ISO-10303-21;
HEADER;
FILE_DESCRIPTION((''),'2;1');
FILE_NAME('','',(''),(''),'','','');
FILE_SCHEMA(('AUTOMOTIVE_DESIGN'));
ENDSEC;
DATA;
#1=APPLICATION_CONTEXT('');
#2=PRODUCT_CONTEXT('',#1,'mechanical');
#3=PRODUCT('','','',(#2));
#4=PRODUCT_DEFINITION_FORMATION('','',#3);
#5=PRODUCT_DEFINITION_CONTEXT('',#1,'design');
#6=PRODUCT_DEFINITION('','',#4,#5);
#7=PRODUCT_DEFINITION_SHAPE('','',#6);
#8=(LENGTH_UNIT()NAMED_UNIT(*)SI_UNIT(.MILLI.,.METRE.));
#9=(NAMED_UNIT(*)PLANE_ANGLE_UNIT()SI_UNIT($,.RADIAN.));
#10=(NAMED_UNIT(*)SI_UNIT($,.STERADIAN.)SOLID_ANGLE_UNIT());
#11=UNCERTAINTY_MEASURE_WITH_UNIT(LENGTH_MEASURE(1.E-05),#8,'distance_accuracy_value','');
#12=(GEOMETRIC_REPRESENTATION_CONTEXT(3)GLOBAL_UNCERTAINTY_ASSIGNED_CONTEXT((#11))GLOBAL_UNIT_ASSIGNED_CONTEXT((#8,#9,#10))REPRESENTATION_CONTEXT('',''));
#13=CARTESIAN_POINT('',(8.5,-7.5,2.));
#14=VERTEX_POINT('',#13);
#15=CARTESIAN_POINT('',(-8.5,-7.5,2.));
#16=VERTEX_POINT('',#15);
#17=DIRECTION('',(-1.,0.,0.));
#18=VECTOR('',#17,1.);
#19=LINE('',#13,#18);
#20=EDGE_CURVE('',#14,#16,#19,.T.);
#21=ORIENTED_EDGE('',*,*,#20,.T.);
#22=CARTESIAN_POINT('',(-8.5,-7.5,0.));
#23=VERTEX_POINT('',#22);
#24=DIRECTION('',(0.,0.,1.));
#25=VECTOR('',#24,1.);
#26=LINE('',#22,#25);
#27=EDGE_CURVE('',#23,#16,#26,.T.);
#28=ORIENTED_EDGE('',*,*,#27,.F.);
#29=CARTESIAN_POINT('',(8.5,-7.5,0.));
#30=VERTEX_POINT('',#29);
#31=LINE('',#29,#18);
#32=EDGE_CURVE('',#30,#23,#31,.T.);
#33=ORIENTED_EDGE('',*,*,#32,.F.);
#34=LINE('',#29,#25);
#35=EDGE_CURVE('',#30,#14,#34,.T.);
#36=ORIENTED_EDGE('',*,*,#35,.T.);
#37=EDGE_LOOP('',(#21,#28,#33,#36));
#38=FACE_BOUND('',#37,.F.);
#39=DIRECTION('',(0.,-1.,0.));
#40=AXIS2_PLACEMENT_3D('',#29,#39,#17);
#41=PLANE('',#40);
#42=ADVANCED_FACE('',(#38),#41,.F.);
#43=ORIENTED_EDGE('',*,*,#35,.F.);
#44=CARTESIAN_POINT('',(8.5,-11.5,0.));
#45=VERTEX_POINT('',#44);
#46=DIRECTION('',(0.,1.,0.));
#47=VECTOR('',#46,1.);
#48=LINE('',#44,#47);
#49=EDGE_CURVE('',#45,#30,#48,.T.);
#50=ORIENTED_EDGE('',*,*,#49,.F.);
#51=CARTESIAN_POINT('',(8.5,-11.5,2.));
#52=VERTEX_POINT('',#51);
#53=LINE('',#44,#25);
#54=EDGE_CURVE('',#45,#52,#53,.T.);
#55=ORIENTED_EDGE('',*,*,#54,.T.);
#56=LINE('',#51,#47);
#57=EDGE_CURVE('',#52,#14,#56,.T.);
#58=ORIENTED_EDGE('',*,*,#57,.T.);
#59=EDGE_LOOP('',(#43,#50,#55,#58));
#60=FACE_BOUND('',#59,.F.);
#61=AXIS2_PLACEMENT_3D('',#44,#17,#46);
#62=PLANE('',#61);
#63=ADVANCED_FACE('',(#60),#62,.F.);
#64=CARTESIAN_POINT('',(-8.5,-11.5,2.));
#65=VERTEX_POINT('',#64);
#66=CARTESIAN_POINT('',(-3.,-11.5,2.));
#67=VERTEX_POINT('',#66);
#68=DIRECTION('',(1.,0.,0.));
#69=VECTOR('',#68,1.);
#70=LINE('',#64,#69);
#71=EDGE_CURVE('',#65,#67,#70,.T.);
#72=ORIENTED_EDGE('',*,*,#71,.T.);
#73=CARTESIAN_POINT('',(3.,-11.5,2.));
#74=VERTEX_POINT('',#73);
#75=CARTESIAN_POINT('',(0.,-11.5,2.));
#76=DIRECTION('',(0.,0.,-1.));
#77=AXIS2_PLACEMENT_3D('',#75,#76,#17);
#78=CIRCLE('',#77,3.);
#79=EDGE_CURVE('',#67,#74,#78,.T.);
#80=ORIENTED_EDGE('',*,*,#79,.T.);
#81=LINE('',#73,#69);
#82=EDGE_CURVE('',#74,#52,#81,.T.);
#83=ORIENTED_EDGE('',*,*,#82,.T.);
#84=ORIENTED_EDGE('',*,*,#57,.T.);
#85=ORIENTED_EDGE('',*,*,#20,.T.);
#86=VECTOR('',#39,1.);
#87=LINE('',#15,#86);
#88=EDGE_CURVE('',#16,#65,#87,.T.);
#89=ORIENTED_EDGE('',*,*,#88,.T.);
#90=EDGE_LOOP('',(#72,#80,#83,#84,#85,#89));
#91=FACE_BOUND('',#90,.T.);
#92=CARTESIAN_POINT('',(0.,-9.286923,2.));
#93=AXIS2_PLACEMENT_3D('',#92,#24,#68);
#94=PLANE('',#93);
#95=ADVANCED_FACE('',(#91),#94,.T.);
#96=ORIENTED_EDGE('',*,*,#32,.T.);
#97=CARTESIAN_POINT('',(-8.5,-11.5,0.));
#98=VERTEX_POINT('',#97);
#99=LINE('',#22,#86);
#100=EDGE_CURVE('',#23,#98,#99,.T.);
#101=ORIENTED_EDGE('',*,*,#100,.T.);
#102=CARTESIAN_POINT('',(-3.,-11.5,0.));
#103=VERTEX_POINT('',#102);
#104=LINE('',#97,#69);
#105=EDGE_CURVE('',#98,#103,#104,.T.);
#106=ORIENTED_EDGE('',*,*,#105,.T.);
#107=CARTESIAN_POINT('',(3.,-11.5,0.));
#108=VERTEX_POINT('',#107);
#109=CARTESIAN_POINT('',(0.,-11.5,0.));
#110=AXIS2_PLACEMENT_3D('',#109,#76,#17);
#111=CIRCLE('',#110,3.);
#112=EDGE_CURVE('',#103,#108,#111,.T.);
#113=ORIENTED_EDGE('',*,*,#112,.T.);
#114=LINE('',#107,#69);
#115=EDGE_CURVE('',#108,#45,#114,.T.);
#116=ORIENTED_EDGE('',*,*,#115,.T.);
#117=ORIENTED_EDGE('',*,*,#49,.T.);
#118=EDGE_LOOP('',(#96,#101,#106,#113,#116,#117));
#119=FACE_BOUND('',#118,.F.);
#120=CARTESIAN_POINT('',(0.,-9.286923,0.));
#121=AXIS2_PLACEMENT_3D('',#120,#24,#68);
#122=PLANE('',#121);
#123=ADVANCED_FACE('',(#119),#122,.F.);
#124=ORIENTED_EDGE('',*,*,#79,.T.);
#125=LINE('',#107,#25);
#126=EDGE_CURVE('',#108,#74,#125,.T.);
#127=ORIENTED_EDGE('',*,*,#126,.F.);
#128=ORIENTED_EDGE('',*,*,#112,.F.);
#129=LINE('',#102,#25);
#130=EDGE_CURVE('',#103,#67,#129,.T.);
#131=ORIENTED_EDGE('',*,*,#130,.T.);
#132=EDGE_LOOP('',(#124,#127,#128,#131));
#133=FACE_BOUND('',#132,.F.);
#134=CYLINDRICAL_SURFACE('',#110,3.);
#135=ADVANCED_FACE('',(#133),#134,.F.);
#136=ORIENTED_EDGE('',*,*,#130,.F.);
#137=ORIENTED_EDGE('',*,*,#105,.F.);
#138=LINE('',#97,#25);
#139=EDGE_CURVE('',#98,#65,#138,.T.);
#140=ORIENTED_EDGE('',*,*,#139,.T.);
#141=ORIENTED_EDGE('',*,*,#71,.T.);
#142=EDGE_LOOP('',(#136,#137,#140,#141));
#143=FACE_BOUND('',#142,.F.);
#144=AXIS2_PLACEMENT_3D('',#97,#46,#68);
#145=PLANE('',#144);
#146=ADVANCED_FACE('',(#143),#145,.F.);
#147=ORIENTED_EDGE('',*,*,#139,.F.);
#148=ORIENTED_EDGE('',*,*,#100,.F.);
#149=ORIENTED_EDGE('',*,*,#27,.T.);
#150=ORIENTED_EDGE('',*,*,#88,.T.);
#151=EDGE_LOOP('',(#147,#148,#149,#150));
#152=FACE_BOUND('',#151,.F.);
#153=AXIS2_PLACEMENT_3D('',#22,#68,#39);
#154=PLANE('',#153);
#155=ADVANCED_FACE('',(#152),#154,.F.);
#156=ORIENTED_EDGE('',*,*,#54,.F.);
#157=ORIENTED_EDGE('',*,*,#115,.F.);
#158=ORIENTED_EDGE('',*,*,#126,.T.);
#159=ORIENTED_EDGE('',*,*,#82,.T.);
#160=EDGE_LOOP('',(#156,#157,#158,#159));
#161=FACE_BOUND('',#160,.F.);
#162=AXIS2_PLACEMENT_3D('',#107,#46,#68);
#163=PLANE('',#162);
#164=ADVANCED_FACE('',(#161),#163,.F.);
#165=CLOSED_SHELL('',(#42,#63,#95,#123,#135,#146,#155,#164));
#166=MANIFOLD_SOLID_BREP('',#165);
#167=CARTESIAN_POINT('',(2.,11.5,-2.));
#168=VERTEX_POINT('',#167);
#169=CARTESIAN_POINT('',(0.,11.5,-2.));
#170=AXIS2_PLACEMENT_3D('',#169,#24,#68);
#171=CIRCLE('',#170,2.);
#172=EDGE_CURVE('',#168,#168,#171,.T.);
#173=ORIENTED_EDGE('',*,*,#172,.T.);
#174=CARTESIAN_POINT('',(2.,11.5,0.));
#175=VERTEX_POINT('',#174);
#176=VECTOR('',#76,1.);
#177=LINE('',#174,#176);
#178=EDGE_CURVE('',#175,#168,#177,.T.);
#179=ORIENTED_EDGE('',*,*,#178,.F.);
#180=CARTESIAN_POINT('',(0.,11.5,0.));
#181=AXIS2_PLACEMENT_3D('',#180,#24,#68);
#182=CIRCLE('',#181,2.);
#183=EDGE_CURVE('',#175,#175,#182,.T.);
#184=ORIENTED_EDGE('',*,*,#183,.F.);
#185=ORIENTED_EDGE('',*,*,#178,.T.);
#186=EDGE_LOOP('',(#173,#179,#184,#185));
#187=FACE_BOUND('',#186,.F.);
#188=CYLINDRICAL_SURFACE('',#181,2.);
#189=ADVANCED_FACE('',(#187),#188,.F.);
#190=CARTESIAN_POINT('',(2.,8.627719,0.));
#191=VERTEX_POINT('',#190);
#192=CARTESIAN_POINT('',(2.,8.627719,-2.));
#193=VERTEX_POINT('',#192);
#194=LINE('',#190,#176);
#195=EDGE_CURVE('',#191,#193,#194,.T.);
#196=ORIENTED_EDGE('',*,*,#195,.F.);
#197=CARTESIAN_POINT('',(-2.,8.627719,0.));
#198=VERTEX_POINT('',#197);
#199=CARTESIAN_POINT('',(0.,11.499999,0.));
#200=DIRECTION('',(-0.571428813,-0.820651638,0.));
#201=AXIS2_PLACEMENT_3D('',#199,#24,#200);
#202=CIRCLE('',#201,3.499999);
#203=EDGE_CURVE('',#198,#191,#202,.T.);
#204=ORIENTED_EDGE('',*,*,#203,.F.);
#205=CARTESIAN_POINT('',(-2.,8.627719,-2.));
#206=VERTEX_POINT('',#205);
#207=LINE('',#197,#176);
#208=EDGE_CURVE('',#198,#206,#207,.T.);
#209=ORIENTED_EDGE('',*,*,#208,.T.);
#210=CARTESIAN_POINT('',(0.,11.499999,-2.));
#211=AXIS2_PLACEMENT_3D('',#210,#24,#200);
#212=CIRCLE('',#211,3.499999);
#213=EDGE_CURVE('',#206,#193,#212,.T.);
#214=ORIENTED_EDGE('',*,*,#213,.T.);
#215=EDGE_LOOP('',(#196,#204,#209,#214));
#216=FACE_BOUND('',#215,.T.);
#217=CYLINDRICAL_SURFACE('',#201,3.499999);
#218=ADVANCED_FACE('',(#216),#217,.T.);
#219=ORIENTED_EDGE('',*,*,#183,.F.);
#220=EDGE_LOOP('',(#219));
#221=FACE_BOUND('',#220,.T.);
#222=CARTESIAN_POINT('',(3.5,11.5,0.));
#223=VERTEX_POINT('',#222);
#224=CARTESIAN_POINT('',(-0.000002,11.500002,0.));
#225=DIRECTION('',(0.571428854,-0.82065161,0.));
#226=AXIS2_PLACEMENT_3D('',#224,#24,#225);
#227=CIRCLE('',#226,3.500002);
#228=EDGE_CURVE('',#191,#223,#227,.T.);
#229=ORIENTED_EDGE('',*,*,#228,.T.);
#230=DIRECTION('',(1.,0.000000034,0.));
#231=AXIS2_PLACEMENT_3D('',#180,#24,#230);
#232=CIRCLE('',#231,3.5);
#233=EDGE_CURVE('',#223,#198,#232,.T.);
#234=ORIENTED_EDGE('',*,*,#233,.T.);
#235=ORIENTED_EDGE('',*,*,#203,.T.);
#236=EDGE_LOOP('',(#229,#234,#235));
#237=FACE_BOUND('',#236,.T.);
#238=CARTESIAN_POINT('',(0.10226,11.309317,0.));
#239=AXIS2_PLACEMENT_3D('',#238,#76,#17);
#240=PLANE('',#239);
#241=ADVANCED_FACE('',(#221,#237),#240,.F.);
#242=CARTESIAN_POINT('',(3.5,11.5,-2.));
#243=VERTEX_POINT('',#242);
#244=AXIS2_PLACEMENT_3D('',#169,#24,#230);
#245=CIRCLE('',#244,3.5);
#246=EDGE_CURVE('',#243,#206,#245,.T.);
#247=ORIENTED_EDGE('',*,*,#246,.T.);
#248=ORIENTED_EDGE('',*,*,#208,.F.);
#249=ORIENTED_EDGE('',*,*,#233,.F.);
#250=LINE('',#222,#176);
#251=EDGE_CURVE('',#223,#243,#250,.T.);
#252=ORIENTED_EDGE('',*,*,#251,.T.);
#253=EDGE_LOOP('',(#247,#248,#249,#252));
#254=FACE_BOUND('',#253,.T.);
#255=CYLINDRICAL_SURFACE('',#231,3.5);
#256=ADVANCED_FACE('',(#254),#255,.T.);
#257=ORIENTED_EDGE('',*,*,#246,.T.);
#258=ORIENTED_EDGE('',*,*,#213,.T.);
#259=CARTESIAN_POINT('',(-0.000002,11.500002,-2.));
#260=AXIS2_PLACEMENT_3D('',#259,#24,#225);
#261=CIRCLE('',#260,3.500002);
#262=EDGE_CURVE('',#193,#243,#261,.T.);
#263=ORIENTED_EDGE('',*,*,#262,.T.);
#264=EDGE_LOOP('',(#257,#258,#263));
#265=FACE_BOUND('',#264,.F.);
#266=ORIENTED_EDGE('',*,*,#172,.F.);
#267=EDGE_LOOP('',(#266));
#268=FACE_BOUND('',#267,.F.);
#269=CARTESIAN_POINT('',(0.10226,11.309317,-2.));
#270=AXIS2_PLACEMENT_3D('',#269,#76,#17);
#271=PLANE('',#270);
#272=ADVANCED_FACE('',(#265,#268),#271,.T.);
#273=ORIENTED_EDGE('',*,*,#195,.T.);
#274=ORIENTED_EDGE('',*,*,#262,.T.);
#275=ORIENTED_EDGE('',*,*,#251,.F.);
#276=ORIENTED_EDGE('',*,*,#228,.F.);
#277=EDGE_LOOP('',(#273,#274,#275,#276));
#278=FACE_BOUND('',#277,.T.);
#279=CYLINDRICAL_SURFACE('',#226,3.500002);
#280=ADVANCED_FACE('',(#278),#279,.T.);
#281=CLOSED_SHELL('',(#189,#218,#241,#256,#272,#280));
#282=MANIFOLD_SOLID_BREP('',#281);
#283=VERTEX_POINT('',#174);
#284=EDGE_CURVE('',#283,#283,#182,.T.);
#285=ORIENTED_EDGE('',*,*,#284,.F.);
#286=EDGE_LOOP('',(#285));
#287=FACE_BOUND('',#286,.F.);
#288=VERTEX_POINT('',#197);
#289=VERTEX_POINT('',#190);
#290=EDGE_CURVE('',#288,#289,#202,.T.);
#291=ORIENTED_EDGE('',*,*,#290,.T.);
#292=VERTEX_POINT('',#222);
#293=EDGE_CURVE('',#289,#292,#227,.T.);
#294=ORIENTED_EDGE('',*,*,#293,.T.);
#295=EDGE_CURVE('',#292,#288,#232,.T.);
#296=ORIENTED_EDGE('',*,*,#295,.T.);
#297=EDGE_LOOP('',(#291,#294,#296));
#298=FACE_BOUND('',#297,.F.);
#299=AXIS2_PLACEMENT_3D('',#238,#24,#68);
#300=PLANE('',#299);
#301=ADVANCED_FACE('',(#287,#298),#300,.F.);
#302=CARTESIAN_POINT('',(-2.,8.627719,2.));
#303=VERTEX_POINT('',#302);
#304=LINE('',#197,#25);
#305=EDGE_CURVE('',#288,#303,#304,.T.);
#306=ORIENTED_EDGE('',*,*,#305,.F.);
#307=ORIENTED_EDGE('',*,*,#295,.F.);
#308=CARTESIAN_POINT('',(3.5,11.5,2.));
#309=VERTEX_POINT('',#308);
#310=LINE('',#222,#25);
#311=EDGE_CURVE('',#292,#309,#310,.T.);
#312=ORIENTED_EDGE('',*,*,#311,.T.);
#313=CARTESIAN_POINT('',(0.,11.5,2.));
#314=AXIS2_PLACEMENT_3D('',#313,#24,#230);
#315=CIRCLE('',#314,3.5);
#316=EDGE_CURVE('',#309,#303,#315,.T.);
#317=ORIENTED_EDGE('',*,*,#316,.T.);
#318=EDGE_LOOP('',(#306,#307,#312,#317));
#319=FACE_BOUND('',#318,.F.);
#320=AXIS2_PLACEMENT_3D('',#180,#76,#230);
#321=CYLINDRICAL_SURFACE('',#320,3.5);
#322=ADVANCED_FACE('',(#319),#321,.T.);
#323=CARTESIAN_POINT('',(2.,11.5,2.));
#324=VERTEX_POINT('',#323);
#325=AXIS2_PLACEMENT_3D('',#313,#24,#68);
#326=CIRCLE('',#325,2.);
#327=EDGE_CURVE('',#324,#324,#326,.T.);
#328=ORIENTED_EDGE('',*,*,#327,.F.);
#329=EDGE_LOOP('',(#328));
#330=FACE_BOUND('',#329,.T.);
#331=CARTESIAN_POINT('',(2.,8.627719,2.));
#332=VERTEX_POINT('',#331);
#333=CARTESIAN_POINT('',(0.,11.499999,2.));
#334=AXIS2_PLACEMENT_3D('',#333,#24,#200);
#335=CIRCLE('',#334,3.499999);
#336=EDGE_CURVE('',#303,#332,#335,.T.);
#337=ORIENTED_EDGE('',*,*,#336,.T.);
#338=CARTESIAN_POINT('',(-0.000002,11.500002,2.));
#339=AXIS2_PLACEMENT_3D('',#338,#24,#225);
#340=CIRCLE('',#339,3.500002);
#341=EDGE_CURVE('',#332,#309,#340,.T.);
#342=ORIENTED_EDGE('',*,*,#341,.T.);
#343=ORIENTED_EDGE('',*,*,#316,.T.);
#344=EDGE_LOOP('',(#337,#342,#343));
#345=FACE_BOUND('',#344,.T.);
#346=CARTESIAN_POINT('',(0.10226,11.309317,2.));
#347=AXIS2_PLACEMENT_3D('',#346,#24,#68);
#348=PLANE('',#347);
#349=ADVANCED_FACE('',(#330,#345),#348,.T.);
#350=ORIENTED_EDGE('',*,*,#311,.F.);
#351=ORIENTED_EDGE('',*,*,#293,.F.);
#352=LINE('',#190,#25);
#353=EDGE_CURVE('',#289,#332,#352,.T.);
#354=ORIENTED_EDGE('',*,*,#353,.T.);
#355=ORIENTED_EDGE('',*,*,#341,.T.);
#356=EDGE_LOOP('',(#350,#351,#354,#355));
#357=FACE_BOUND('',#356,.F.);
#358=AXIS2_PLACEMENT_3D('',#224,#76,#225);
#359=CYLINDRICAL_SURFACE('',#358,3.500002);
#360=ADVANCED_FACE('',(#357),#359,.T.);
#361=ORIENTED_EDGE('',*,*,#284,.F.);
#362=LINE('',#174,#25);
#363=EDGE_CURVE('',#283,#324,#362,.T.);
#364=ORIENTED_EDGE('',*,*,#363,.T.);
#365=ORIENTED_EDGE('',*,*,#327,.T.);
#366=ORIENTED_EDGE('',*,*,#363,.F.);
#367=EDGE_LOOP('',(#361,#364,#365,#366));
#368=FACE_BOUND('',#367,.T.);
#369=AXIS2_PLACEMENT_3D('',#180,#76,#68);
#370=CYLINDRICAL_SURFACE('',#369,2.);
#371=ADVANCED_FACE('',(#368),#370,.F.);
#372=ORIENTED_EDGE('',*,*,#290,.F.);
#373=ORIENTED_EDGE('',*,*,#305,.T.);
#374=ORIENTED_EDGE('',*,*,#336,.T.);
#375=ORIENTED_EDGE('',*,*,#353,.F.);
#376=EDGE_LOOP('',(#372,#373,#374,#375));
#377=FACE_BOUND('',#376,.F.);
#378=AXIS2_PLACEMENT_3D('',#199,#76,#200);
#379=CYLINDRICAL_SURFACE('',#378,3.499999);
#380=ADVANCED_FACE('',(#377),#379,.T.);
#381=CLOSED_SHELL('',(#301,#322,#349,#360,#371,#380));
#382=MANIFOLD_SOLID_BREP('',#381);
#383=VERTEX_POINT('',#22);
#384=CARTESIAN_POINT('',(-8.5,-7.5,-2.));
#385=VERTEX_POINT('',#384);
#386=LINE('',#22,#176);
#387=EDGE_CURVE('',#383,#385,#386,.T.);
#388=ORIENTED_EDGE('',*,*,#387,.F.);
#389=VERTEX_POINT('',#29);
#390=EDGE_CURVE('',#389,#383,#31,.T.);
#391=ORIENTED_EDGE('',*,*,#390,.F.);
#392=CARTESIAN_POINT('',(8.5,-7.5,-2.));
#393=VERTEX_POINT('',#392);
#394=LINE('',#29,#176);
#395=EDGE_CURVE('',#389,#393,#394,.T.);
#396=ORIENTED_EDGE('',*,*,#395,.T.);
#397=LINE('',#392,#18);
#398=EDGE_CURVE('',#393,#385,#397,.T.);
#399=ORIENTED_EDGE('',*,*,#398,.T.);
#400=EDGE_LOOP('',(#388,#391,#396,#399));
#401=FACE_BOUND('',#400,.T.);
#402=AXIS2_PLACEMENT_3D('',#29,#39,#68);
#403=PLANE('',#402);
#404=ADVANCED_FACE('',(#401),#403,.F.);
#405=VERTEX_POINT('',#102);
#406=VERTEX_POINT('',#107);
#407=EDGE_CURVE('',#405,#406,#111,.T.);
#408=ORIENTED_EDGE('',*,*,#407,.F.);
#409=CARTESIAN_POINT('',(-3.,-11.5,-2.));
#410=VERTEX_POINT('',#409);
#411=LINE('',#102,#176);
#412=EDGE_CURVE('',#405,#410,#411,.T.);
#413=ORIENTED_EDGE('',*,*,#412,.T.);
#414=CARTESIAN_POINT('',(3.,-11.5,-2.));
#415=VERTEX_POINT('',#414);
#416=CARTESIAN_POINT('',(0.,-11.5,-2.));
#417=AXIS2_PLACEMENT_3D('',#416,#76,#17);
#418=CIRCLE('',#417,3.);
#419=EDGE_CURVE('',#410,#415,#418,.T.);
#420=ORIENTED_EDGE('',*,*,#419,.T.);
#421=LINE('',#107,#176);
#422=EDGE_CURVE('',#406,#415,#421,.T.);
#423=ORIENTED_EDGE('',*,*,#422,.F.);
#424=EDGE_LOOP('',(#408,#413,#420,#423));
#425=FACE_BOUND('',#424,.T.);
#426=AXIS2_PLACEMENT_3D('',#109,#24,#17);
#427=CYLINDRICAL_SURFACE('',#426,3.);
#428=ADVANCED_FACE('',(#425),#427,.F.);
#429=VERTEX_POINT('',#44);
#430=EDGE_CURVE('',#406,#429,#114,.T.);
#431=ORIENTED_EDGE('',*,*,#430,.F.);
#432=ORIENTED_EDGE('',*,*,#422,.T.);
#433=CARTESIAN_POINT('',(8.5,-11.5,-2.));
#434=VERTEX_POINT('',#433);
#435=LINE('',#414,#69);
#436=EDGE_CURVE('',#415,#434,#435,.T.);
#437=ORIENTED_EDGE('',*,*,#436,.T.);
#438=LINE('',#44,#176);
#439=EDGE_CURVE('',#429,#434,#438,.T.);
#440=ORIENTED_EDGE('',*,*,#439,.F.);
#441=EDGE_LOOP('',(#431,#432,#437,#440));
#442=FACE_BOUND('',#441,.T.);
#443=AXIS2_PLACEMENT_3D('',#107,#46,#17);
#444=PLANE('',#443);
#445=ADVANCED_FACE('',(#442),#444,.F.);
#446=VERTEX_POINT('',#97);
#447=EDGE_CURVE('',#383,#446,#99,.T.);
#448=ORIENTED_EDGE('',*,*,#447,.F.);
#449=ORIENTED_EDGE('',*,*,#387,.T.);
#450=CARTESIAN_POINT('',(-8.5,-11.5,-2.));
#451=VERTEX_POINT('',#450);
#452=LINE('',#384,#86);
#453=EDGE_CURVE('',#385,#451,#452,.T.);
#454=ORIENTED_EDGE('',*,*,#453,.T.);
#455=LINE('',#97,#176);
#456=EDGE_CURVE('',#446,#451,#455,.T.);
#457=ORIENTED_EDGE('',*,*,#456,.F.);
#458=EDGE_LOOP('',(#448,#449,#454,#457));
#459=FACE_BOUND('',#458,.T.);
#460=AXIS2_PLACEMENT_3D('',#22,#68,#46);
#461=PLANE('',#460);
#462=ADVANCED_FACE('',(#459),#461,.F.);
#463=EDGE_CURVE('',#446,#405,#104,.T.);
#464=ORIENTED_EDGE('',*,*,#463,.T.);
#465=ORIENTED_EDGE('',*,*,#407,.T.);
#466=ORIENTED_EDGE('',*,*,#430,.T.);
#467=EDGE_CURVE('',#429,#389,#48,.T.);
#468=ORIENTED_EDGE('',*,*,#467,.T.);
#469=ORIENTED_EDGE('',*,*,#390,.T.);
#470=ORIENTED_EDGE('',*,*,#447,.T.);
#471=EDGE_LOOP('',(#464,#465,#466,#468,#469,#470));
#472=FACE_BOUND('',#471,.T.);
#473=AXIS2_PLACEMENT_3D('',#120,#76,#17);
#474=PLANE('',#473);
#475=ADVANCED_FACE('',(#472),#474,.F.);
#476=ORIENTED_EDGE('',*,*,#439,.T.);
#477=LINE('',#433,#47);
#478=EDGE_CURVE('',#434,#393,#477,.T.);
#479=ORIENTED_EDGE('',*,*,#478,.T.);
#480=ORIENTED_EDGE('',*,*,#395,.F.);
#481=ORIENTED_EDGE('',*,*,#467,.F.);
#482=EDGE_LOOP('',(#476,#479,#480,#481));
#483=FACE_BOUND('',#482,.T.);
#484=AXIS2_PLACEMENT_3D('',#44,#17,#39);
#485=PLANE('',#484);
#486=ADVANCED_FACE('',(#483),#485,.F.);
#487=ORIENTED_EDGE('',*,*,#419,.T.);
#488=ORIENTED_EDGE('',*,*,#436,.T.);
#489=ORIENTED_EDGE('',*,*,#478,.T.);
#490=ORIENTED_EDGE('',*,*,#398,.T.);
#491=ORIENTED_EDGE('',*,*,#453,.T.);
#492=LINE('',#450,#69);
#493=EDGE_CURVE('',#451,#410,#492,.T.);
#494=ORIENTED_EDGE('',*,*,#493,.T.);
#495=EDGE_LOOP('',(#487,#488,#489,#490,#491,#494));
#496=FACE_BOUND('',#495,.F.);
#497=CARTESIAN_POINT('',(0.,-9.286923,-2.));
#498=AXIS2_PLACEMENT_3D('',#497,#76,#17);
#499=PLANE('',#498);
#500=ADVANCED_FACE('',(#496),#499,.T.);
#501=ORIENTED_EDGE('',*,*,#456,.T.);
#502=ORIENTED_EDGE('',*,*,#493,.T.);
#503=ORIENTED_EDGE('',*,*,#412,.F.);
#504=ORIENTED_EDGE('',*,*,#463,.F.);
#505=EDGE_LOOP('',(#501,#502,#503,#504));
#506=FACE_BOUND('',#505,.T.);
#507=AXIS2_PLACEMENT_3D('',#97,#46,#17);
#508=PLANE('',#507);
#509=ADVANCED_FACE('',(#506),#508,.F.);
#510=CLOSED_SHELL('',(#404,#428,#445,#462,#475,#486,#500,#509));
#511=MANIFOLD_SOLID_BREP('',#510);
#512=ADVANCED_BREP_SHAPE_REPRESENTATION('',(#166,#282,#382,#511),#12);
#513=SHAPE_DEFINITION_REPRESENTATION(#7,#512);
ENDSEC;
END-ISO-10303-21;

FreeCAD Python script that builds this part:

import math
import FreeCAD as App
import Part
import Sketcher

V = App.Vector

doc = App.newDocument("Part")
body = doc.addObject("PartDesign::Body", "Body")
body.AllowCompound = True

sketch1 = body.newObject("Sketcher::SketchObject", "Sketch")
sketch1.AttachmentSupport = (doc.getObject("XY_Plane"), [""])
sketch1.MapMode = "FlatFace"
sketch1.addGeometry([
    Part.ArcOfCircle(Part.Circle(V(0, 11.5, 0), V(0, 0, 1), 3.5), math.radians(-125), math.radians(-55)),
    Part.ArcOfCircle(Part.Circle(V(0, 11.5, 0), V(0, 0, 1), 3.5), math.radians(-55), math.radians(0)),
    Part.ArcOfCircle(Part.Circle(V(0, 11.5, 0), V(0, 0, 1), 3.5), math.radians(0), math.radians(235)),
    Part.Circle(V(0, 11.5, 0), V(0, 0, 1), 2),
    Part.ArcOfCircle(Part.Circle(V(0, -11.5, 0), V(0, 0, 1), 3), math.radians(0), math.radians(180)),
    Part.LineSegment(V(3, -11.5, 0), V(8.5, -11.5, 0)),
    Part.LineSegment(V(8.5, -11.5, 0), V(8.5, -7.5, 0)),
    Part.LineSegment(V(8.5, -7.5, 0), V(-8.5, -7.5, 0)),
    Part.LineSegment(V(-8.5, -7.5, 0), V(-8.5, -11.5, 0)),
    Part.LineSegment(V(-8.5, -11.5, 0), V(-3, -11.5, 0)),
], False)
sketch1.addConstraint([
    Sketcher.Constraint("Tangent", 0, 2, 1, 1),
    Sketcher.Constraint("Tangent", 1, 2, 2, 1),
    Sketcher.Constraint("Tangent", 2, 2, 0, 1),
    Sketcher.Constraint("Coincident", 4, 1, 5, 1),
    Sketcher.Constraint("Coincident", 5, 2, 6, 1),
    Sketcher.Constraint("Coincident", 6, 2, 7, 1),
    Sketcher.Constraint("Coincident", 7, 2, 8, 1),
    Sketcher.Constraint("Coincident", 8, 2, 9, 1),
    Sketcher.Constraint("Coincident", 9, 2, 4, 2),
    Sketcher.Constraint("Horizontal", 5),
    Sketcher.Constraint("Vertical", 6),
    Sketcher.Constraint("Horizontal", 7),
    Sketcher.Constraint("Vertical", 8),
    Sketcher.Constraint("Horizontal", 9),
    Sketcher.Constraint("Coincident", 3, 3, 0, 3),
    Sketcher.Constraint("Symmetric", 0, 3, 4, 3, -1, 1),
    Sketcher.Constraint("Symmetric", 0, 2, 2, 2, -2),
    Sketcher.Constraint("Symmetric", 5, 2, 8, 2, -2),
    Sketcher.Constraint("Horizontal", 3, 3, 1, 2),
    Sketcher.Constraint("Diameter", 3, 4.0),
    Sketcher.Constraint("Radius", 4, 3.0),
    Sketcher.Constraint("Radius", 0, 3.499999),
    Sketcher.Constraint("DistanceX", 7, 2, 7, 1, 17.0),
    Sketcher.Constraint("DistanceY", 6, 1, 6, 2, 4.0),
    Sketcher.Constraint("DistanceX", -1, 1, 0, 2, 2.0),
    Sketcher.Constraint("DistanceY", 4, 3, 0, 3, 22.999999),
    Sketcher.Constraint("DistanceY", 4, 1, 1, 2, 23.0),
])
pad1 = body.newObject("PartDesign::Pad", "Pad")
pad1.Profile = sketch1
pad1.Length = 2
body2 = doc.addObject("PartDesign::Body", "Body001")
body2.AllowCompound = True
doc.recompute()

mirroring = doc.addObject("Part::Mirroring", "Mirroring")
mirroring.Source = body
mirroring.Base = V(0, 0, 0)
mirroring.Normal = V(0, 0, 1)
body2.BaseFeature = mirroring
doc.recompute()
mirroring.Visibility = False

doc.recompute()
